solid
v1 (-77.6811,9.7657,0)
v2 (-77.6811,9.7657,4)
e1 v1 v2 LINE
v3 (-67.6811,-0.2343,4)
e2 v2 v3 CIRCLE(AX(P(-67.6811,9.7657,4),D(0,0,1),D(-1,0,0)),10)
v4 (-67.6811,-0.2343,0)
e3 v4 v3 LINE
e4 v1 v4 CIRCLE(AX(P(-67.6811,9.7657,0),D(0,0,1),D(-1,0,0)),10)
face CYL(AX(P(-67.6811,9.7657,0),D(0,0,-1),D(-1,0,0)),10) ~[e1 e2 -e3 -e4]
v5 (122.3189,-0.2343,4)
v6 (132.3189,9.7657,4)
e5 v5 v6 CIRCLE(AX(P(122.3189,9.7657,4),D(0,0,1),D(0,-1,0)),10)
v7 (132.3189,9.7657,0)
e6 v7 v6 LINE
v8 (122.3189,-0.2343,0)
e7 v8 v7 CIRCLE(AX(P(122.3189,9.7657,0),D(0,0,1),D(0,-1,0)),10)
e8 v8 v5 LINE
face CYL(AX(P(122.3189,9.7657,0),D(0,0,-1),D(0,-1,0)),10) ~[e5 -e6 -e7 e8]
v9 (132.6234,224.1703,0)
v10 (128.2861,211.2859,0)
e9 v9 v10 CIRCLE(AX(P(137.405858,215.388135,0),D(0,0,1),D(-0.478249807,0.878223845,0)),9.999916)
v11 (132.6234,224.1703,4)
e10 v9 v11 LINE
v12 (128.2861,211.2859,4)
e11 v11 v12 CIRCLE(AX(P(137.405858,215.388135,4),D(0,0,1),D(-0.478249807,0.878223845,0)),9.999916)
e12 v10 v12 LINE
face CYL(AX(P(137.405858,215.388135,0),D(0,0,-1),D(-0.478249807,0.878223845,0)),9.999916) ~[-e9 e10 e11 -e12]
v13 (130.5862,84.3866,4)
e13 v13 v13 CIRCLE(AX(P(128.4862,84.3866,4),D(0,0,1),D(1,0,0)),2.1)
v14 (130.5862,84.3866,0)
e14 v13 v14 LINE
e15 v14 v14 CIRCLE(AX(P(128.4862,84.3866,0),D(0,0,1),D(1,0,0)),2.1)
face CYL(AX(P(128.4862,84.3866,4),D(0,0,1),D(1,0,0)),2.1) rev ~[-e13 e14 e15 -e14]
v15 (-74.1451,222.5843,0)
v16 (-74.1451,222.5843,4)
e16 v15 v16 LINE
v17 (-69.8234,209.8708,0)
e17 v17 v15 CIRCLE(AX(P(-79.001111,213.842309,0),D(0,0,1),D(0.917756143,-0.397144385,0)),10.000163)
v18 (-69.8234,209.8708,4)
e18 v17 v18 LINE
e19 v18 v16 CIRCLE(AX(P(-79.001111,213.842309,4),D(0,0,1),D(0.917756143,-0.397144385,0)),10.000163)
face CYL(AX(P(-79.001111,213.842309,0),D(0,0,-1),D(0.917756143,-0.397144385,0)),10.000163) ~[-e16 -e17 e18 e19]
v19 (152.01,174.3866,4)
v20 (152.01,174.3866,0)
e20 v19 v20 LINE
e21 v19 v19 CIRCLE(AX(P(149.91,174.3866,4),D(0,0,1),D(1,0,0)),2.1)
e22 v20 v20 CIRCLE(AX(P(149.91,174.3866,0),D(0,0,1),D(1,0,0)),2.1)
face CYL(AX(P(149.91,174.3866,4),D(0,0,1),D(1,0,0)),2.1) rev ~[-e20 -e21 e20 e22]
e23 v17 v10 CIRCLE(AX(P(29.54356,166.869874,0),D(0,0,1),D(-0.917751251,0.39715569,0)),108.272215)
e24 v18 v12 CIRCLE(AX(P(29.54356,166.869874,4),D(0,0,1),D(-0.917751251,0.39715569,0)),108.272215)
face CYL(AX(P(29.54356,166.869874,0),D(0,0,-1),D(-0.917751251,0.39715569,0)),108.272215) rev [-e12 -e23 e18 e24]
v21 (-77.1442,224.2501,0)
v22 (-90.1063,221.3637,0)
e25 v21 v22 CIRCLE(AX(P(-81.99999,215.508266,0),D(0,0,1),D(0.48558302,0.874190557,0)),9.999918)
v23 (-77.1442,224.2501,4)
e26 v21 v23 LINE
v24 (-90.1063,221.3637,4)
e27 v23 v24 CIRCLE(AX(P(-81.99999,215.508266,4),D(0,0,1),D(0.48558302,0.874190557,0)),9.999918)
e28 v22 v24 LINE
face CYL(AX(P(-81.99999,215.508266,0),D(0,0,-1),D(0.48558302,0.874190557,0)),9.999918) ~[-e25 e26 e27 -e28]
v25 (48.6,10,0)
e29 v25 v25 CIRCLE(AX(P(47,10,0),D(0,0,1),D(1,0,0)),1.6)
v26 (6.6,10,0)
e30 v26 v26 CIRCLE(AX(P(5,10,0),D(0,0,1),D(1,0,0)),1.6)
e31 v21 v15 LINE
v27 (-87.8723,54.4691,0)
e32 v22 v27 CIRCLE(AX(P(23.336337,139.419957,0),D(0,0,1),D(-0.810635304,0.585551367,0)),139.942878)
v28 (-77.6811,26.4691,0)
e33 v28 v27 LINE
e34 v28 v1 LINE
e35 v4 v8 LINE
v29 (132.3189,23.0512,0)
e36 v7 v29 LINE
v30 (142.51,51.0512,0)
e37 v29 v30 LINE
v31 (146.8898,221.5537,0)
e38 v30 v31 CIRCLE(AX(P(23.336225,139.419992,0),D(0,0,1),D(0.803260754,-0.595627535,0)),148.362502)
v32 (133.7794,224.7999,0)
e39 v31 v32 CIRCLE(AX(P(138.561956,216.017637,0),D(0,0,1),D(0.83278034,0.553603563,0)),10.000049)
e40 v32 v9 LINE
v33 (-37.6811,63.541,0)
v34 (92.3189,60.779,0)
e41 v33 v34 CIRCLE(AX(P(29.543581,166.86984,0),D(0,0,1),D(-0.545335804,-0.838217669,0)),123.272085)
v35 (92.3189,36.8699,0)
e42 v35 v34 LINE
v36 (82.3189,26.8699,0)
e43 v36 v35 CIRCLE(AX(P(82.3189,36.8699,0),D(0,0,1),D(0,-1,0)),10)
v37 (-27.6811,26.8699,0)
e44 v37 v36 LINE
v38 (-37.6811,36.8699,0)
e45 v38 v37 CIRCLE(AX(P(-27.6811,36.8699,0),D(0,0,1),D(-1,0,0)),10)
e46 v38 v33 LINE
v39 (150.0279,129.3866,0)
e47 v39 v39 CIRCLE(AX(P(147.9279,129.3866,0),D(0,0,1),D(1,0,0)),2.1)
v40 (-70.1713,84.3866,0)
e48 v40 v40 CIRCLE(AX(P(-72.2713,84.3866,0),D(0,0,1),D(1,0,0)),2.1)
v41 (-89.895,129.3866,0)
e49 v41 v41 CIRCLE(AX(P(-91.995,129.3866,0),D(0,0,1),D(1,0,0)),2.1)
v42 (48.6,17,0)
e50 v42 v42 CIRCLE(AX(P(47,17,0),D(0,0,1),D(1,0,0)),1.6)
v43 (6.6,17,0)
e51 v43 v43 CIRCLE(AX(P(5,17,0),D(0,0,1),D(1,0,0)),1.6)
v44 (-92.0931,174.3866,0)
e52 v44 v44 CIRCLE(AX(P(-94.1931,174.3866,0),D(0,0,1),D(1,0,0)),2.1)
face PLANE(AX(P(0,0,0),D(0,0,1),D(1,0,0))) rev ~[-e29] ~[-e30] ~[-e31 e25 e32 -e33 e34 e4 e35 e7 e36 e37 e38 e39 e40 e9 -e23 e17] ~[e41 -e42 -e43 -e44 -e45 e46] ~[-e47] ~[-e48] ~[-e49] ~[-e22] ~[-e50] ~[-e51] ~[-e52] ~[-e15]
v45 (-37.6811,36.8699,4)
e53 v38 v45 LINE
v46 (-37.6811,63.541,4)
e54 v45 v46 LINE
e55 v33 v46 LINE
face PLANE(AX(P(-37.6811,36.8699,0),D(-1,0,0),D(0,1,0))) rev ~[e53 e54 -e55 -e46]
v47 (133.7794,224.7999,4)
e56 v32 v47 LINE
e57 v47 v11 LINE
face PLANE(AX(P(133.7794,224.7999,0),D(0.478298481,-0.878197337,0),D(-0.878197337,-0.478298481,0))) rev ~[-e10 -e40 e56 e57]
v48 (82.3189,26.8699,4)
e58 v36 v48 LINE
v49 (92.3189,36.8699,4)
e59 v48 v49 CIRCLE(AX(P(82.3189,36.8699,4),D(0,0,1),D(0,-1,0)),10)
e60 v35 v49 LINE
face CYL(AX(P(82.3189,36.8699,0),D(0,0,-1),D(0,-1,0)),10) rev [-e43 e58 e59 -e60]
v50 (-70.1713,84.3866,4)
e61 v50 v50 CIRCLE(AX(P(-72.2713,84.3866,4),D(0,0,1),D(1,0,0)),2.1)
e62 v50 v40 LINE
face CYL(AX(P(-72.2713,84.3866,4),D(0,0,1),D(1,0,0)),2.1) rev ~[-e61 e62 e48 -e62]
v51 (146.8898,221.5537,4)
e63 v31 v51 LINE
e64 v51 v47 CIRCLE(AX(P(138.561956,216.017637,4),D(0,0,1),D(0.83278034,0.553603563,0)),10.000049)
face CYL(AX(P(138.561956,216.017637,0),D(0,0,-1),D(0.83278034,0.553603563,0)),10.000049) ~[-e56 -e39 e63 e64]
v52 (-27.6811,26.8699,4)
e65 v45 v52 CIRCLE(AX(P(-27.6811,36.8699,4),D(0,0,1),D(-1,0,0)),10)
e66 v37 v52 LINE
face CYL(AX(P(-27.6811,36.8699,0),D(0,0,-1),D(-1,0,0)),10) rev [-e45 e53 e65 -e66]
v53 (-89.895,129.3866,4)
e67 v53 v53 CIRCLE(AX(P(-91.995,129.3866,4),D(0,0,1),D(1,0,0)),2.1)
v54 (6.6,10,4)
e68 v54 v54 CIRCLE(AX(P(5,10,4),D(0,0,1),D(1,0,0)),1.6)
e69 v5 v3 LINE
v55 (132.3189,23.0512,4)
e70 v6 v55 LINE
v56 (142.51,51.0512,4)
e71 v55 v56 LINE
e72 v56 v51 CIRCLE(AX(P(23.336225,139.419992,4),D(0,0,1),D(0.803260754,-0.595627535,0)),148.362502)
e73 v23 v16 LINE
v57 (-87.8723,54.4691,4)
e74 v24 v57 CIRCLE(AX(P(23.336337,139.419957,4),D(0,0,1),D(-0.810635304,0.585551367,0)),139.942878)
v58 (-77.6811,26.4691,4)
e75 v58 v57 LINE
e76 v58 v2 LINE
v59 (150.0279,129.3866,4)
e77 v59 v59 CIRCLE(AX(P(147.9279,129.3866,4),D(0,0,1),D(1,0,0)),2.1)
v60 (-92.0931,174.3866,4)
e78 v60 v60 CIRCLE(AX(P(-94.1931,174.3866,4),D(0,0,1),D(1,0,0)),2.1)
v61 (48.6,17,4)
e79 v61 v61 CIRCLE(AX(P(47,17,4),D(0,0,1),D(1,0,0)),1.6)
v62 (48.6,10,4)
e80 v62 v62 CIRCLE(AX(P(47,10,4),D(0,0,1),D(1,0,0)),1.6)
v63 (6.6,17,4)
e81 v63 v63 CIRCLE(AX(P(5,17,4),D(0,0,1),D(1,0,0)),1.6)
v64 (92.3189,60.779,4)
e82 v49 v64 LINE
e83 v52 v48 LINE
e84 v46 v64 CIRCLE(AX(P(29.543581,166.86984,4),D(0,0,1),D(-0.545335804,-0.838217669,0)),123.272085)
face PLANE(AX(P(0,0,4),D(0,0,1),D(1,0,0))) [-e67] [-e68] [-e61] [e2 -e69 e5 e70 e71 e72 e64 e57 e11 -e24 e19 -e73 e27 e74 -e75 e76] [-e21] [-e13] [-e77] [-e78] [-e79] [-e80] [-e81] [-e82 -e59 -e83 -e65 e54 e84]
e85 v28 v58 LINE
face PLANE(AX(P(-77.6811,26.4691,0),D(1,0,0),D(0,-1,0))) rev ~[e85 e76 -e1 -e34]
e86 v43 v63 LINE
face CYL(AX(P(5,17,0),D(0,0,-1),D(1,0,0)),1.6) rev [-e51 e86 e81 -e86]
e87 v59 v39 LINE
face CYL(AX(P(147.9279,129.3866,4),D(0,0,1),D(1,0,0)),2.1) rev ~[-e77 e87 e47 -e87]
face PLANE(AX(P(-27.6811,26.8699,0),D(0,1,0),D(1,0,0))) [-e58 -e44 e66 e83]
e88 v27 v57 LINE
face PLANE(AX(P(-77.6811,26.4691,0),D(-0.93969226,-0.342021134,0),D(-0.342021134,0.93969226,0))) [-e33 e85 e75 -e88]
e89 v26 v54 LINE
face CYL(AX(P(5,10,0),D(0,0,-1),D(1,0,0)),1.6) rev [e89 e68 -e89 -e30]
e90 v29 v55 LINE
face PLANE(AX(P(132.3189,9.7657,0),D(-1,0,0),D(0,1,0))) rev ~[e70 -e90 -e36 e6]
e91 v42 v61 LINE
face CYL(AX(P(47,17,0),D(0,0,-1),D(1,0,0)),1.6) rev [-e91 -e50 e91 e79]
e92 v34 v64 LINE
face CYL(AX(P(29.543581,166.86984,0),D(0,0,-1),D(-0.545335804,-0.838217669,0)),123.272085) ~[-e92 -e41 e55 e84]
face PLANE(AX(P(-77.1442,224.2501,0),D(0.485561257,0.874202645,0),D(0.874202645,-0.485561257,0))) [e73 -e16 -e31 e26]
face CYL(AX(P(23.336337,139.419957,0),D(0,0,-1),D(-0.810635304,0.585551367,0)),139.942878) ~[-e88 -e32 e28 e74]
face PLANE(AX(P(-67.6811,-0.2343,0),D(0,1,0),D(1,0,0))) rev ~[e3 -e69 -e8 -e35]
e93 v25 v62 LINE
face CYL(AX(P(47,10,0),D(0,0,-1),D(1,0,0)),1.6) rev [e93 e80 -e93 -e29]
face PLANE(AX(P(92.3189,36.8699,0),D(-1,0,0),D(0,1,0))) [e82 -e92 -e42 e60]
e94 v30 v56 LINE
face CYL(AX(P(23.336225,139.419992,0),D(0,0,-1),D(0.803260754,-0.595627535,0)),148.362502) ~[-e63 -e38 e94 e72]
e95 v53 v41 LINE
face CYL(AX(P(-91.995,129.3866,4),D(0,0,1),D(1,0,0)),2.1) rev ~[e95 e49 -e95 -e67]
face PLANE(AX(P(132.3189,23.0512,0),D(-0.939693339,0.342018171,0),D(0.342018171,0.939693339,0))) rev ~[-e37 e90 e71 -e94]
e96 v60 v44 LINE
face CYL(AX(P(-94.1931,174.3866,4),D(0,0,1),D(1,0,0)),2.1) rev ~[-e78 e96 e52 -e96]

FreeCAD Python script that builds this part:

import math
import FreeCAD as App
import Part
import Sketcher
from FreeCAD import Vector
Q = App.Units.Quantity

doc = App.newDocument("Part")
body = doc.addObject("PartDesign::Body", "Body")

# Sketch on XY plane
sketch1 = doc.addObject("Sketcher::SketchObject", "Sketch")
body.addObject(sketch1)
sketch1.AttachmentSupport = (doc.XY_Plane, [""])
sketch1.MapMode = "FlatFace"
sketch1.addGeometry(Part.ArcOfCircle(Part.Circle(Vector(-67.6811, 9.7657, 0), Vector(0, 0, 1), 10), math.radians(180), math.radians(270)), False)
sketch1.addGeometry(Part.LineSegment(Vector(-67.6811, -0.2343, 0), Vector(122.3189, -0.2343, 0)), False)
sketch1.addGeometry(Part.ArcOfCircle(Part.Circle(Vector(122.3189, 9.7657, 0), Vector(0, 0, 1), 10), math.radians(-90), math.radians(0)), False)
sketch1.addGeometry(Part.LineSegment(Vector(132.3189, 9.7657, 0), Vector(132.3189, 23.0512, 0)), False)
sketch1.addGeometry(Part.LineSegment(Vector(132.3189, 23.0512, 0), Vector(142.51, 51.0512, 0)), False)
sketch1.addGeometry(Part.ArcOfCircle(Part.Circle(Vector(23.3362, 139.42, 0), Vector(0, 0, 1), 148.362527), math.radians(-36.557378), math.radians(33.614438)), False)
sketch1.addGeometry(Part.ArcOfCircle(Part.Circle(Vector(138.562, 216.0177, 0), Vector(0, 0, 1), 9.999977), math.radians(33.614426), math.radians(118.571775)), False)
sketch1.addGeometry(Part.LineSegment(Vector(133.7794, 224.7999, 0), Vector(132.6234, 224.1703, 0)), False)
sketch1.addGeometry(Part.ArcOfCircle(Part.Circle(Vector(137.4059, 215.3881, 0), Vector(0, 0, 1), 9.999967), math.radians(118.571271), math.radians(204.218811)), False)
sketch1.addGeometry(Part.ArcOfCircle(Part.Circle(Vector(29.5436, 166.8699, 0), Vector(0, 0, 1), 108.272241), math.radians(156.599534), math.radians(384.218999)), False)
sketch1.addGeometry(Part.ArcOfCircle(Part.Circle(Vector(-79.0009, 213.8423, 0), Vector(0, 0, 1), 9.999966), math.radians(-23.400216), math.radians(60.949737)), False)
sketch1.addGeometry(Part.LineSegment(Vector(-74.1451, 222.5843, 0), Vector(-77.1442, 224.2501, 0)), False)
sketch1.addGeometry(Part.ArcOfCircle(Part.Circle(Vector(-82, 215.5082, 0), Vector(0, 0, 1), 9.99998), math.radians(60.949458), math.radians(144.157934)), False)
sketch1.addGeometry(Part.ArcOfCircle(Part.Circle(Vector(23.3362, 139.42, 0), Vector(0, 0, 1), 139.942741), math.radians(144.15803), math.radians(217.375795)), False)
sketch1.addGeometry(Part.LineSegment(Vector(-87.8723, 54.4691, 0), Vector(-77.6811, 26.4691, 0)), False)
sketch1.addGeometry(Part.LineSegment(Vector(-77.6811, 26.4691, 0), Vector(-77.6811, 9.7657, 0)), False)
sketch1.addGeometry(Part.Circle(Vector(5, 10, 0), Vector(0, 0, 1), 1.6), False)
sketch1.addGeometry(Part.Circle(Vector(5, 17, 0), Vector(0, 0, 1), 1.6), False)
sketch1.addGeometry(Part.LineSegment(Vector(82.3189, 26.8699, 0), Vector(-27.6811, 26.8699, 0)), False)
sketch1.addGeometry(Part.ArcOfCircle(Part.Circle(Vector(-27.6811, 36.8699, 0), Vector(0, 0, 1), 10), math.radians(180), math.radians(270)), False)
sketch1.addGeometry(Part.LineSegment(Vector(-37.6811, 36.8699, 0), Vector(-37.6811, 63.541, 0)), False)
sketch1.addGeometry(Part.ArcOfCircle(Part.Circle(Vector(29.5436, 166.8699, 0), Vector(0, 0, 1), 123.272146), math.radians(-123.047606), math.radians(-59.386671)), False)
sketch1.addGeometry(Part.LineSegment(Vector(92.3189, 60.779, 0), Vector(92.3189, 36.8699, 0)), False)
sketch1.addGeometry(Part.ArcOfCircle(Part.Circle(Vector(82.3189, 36.8699, 0), Vector(0, 0, 1), 10), math.radians(-90), math.radians(0)), False)
sketch1.addGeometry(Part.Circle(Vector(47, 10, 0), Vector(0, 0, 1), 1.6), False)
sketch1.addGeometry(Part.Circle(Vector(47, 17, 0), Vector(0, 0, 1), 1.6), False)
sketch1.addConstraint(Sketcher.Constraint("Tangent", 0, 2, 1, 1))
sketch1.addConstraint(Sketcher.Constraint("Tangent", 1, 2, 2, 1))
sketch1.addConstraint(Sketcher.Constraint("Tangent", 2, 2, 3, 1))
sketch1.addConstraint(Sketcher.Constraint("Coincident", 3, 2, 4, 1))
sketch1.addConstraint(Sketcher.Constraint("Coincident", 4, 2, 5, 1))
sketch1.addConstraint(Sketcher.Constraint("Tangent", 5, 2, 6, 1))
sketch1.addConstraint(Sketcher.Constraint("Tangent", 6, 2, 7, 1))
sketch1.addConstraint(Sketcher.Constraint("Tangent", 7, 2, 8, 1))
sketch1.addConstraint(Sketcher.Constraint("Tangent", 8, 2, 9, 2))
sketch1.addConstraint(Sketcher.Constraint("Tangent", 9, 1, 10, 1))
sketch1.addConstraint(Sketcher.Constraint("Tangent", 10, 2, 11, 1))
sketch1.addConstraint(Sketcher.Constraint("Tangent", 11, 2, 12, 1))
sketch1.addConstraint(Sketcher.Constraint("Tangent", 12, 2, 13, 1))
sketch1.addConstraint(Sketcher.Constraint("Coincident", 13, 2, 14, 1))
sketch1.addConstraint(Sketcher.Constraint("Coincident", 14, 2, 15, 1))
sketch1.addConstraint(Sketcher.Constraint("Tangent", 15, 2, 0, 1))
sketch1.addConstraint(Sketcher.Constraint("Tangent", 18, 2, 19, 2))
sketch1.addConstraint(Sketcher.Constraint("Tangent", 19, 1, 20, 1))
sketch1.addConstraint(Sketcher.Constraint("Coincident", 20, 2, 21, 1))
sketch1.addConstraint(Sketcher.Constraint("Coincident", 21, 2, 22, 1))
sketch1.addConstraint(Sketcher.Constraint("Tangent", 22, 2, 23, 2))
sketch1.addConstraint(Sketcher.Constraint("Tangent", 23, 1, 18, 1))
sketch1.addConstraint(Sketcher.Constraint("Horizontal", 1))
sketch1.addConstraint(Sketcher.Constraint("Vertical", 3))
sketch1.addConstraint(Sketcher.Constraint("Vertical", 15))
sketch1.addConstraint(Sketcher.Constraint("Horizontal", 18))
sketch1.addConstraint(Sketcher.Constraint("Vertical", 20))
sketch1.addConstraint(Sketcher.Constraint("Vertical", 22))
sketch1.addConstraint(Sketcher.Constraint("Coincident", 13, 3, 5, 3))
sketch1.addConstraint(Sketcher.Constraint("Coincident", 21, 3, 9, 3))
sketch1.addConstraint(Sketcher.Constraint("Equal", 0, 2))
sketch1.addConstraint(Sketcher.Constraint("Equal", 2, 6))
sketch1.addConstraint(Sketcher.Constraint("Equal", 6, 8))
sketch1.addConstraint(Sketcher.Constraint("Equal", 8, 10))
sketch1.addConstraint(Sketcher.Constraint("Equal", 10, 12))
sketch1.addConstraint(Sketcher.Constraint("Equal", 16, 17))
sketch1.addConstraint(Sketcher.Constraint("Equal", 12, 19))
sketch1.addConstraint(Sketcher.Constraint("Equal", 19, 23))
sketch1.addConstraint(Sketcher.Constraint("Equal", 17, 24))
sketch1.addConstraint(Sketcher.Constraint("Equal", 24, 25))
sketch1.addConstraint(Sketcher.Constraint("Horizontal", 16, 3, 24, 3))
sketch1.addConstraint(Sketcher.Constraint("Horizontal", 17, 3, 25, 3))
sketch1.addConstraint(Sketcher.Constraint("Vertical", 16, 3, 17, 3))
sketch1.addConstraint(Sketcher.Constraint("Vertical", 24, 3, 25, 3))
sketch1.addConstraint(Sketcher.Constraint("Equal", 4, 14))
sketch1.addConstraint(Sketcher.Constraint("Radius", 0, 10.0))
sketch1.addConstraint(Sketcher.Constraint("DistanceY", -1, 1, 16, 3, 10.0))
sketch1.addConstraint(Sketcher.Constraint("DistanceX", 0, 3, 19, 3, 40.0))
sketch1.addConstraint(Sketcher.Constraint("DistanceX", 23, 3, 2, 3, 40.0))
sketch1.addConstraint(Sketcher.Constraint("DistanceY", 3, 2, 4, 2, 28.0))
sketch1.addConstraint(Sketcher.Constraint("DistanceY", 14, 2, 13, 2, 28.0))
sketch1.addConstraint(Sketcher.Constraint("Diameter", 16, 3.2))
sketch1.addConstraint(Sketcher.Constraint("DistanceX", 1, 1, 1, 2, 190.0))
sketch1.addConstraint(Sketcher.Constraint("Angle", 4, Q("70.0001 deg")))
sketch1.addConstraint(Sketcher.Constraint("DistanceX", 12, 3, -1, 1, 82.0))
sketch1.addConstraint(Sketcher.Constraint("DistanceX", -1, 1, 16, 3, 5.0))
sketch1.addConstraint(Sketcher.Constraint("DistanceY", -1, 1, 17, 3, 17.0))
sketch1.addConstraint(Sketcher.Constraint("DistanceX", -1, 1, 24, 3, 47.0))
sketch1.addConstraint(Sketcher.Constraint("Angle", 11, Q("150.9507 deg")))
sketch1.addConstraint(Sketcher.Constraint("Radius", 5, 148.3625))
sketch1.addConstraint(Sketcher.Constraint("Radius", 9, 108.2722))
sketch1.addConstraint(Sketcher.Constraint("Radius", 13, 139.9427))
sketch1.addConstraint(Sketcher.Constraint("Radius", 21, 123.2721))
sketch1.addConstraint(Sketcher.Constraint("DistanceY", 20, 1, 20, 2, 26.671))
sketch1.addConstraint(Sketcher.Constraint("DistanceY", 22, 2, 22, 1, 23.909))
sketch1.addConstraint(Sketcher.Constraint("DistanceY", -1, 1, 5, 3, 139.42))
sketch1.addConstraint(Sketcher.Constraint("DistanceY", -1, 1, 9, 3, 166.87))
sketch1.addConstraint(Sketcher.Constraint("DistanceX", -1, 1, 4, 2, 142.51))
sketch1.addConstraint(Sketcher.Constraint("DistanceY", -1, 1, 11, 2, 224.25))
sketch1.addConstraint(Sketcher.Constraint("DistanceY", 8, 3, 12, 3, 0.12))
sketch1.addConstraint(Sketcher.Constraint("DistanceY", 9, 3, 6, 2, 57.93))
sketch1.addConstraint(Sketcher.Constraint("DistanceY", 3, 1, 3, 2, 13.2855))
pad1 = doc.addObject("PartDesign::Pad", "Pad")
body.addObject(pad1)
pad1.Profile = sketch1
pad1.Length = 4

# Sketch on XY plane
sketch2 = doc.addObject("Sketcher::SketchObject", "Sketch001")
body.addObject(sketch2)
sketch2.AttachmentSupport = (doc.XY_Plane, [""])
sketch2.MapMode = "FlatFace"
sketch2.AttachmentOffset = App.Placement(Vector(0, 0, 4), App.Rotation())
sketch2.addGeometry(Part.Circle(Vector(-91.995, 129.3866, 0), Vector(0, 0, 1), 2.1), False)
sketch2.addGeometry(Part.Circle(Vector(-72.2713, 84.3866, 0), Vector(0, 0, 1), 2.1), False)
sketch2.addGeometry(Part.Circle(Vector(-94.1931, 174.3866, 0), Vector(0, 0, 1), 2.1), False)
sketch2.addGeometry(Part.Circle(Vector(128.4862, 84.3866, 0), Vector(0, 0, 1), 2.1), False)
sketch2.addGeometry(Part.Circle(Vector(147.9279, 129.3866, 0), Vector(0, 0, 1), 2.1), False)
sketch2.addGeometry(Part.Circle(Vector(149.91, 174.3866, 0), Vector(0, 0, 1), 2.1), False)
sketch2.addConstraint(Sketcher.Constraint("Equal", 0, 1))
sketch2.addConstraint(Sketcher.Constraint("Equal", 1, 2))
sketch2.addConstraint(Sketcher.Constraint("Equal", 2, 3))
sketch2.addConstraint(Sketcher.Constraint("Equal", 3, 4))
sketch2.addConstraint(Sketcher.Constraint("Equal", 4, 5))
sketch2.addConstraint(Sketcher.Constraint("Horizontal", 1, 3, 3, 3))
sketch2.addConstraint(Sketcher.Constraint("Horizontal", 0, 3, 4, 3))
sketch2.addConstraint(Sketcher.Constraint("Horizontal", 2, 3, 5, 3))
sketch2.addConstraint(Sketcher.Constraint("Diameter", 0, 4.2))
sketch2.addConstraint(Sketcher.Constraint("DistanceY", 1, 3, 0, 3, 45.0))
sketch2.addConstraint(Sketcher.Constraint("DistanceY", 0, 3, 2, 3, 45.0))
sketch2.addConstraint(Sketcher.Constraint("DistanceX", -1, 1, 5, 3, 149.91))
sketch2.addConstraint(Sketcher.Constraint("DistanceX", 0, 3, -1, 1, 91.995))
sketch2.addConstraint(Sketcher.Constraint("DistanceX", 2, 3, -1, 1, 94.193))
sketch2.addConstraint(Sketcher.Constraint("DistanceX", -1, 1, 4, 3, 147.928))
sketch2.addConstraint(Sketcher.Constraint("DistanceY", -1, 1, 0, 3, 129.3866))
sketch2.addConstraint(Sketcher.Constraint("DistanceX", 1, 3, -1, 1, 72.2713))
sketch2.addConstraint(Sketcher.Constraint("DistanceX", -1, 1, 3, 3, 128.4862))
pocket1 = doc.addObject("PartDesign::Pocket", "Pocket")
body.addObject(pocket1)
pocket1.Profile = sketch2
pocket1.Length = 4

doc.recompute()
